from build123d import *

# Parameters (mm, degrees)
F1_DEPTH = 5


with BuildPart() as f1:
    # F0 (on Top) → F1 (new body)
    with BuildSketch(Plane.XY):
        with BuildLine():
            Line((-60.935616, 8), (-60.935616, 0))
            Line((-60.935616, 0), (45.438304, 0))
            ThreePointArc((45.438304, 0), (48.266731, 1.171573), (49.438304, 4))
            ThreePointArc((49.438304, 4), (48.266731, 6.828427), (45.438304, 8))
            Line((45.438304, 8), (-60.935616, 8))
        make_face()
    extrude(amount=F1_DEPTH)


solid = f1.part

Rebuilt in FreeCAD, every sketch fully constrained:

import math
import FreeCAD as App
import Part
import Sketcher
from FreeCAD import Vector
Q = App.Units.Quantity

doc = App.newDocument("Part")
params = doc.addObject("Spreadsheet::Sheet", "Params")
for row, (alias, value) in enumerate([
    ("sketch1_radius", "4 mm"),
    ("pad1_length", "5 mm"),
], start=1):
    params.set(f"A{row}", alias)
    params.set(f"B{row}", "=" + value)
    params.setAlias(f"B{row}", alias)

body = doc.addObject("PartDesign::Body", "Body")

# Sketch on XY plane
sketch1 = doc.addObject("Sketcher::SketchObject", "Sketch")
body.addObject(sketch1)
sketch1.AttachmentSupport = (doc.XY_Plane, [""])
sketch1.MapMode = "FlatFace"
sketch1.addGeometry([
    Part.LineSegment(Vector(-60.935616, 8, 0), Vector(-60.935616, 0, 0)),  # 0
    Part.LineSegment(Vector(-60.935616, 0, 0), Vector(45.438304, 0, 0)),  # 1
    Part.ArcOfCircle(Part.Circle(Vector(45.438304, 4, 0), Vector(0, 0, 1), 4), math.radians(-89.999994), math.radians(-0.000006)),  # 2
    Part.ArcOfCircle(Part.Circle(Vector(45.438304, 4, 0), Vector(0, 0, 1), 4), math.radians(0.000006), math.radians(89.999994)),  # 3
    Part.LineSegment(Vector(45.438304, 8, 0), Vector(-60.935616, 8, 0)),  # 4
], False)
sketch1.addConstraint([
    Sketcher.Constraint("Coincident", 0, 2, 1, 1),
    Sketcher.Constraint("Tangent", 1, 2, 2, 1),
    Sketcher.Constraint("Tangent", 2, 2, 3, 1),
    Sketcher.Constraint("Tangent", 3, 2, 4, 1),
    Sketcher.Constraint("Coincident", 4, 2, 0, 1),
    Sketcher.Constraint("Vertical", 0),
    Sketcher.Constraint("Horizontal", 1),
    Sketcher.Constraint("Horizontal", 4),
    Sketcher.Constraint("Equal", 2, 3),
    Sketcher.Constraint("PointOnObject", 0, 2, -1),
    Sketcher.Constraint("Horizontal", 3, 3, 2, 2),
    Sketcher.Constraint("Radius", 2, Q("4 mm")),
    Sketcher.Constraint("DistanceX", 1, 1, 1, 2, Q("106.37392 mm")),
    Sketcher.Constraint("DistanceX", -1, 1, 2, 3, Q("45.438304 mm")),
])
sketch1.setExpression("Constraints[11]", "Params.sketch1_radius")
pad1 = doc.addObject("PartDesign::Pad", "Pad")
body.addObject(pad1)
pad1.Profile = sketch1
pad1.setExpression("Length", "Params.pad1_length")

doc.recompute()
